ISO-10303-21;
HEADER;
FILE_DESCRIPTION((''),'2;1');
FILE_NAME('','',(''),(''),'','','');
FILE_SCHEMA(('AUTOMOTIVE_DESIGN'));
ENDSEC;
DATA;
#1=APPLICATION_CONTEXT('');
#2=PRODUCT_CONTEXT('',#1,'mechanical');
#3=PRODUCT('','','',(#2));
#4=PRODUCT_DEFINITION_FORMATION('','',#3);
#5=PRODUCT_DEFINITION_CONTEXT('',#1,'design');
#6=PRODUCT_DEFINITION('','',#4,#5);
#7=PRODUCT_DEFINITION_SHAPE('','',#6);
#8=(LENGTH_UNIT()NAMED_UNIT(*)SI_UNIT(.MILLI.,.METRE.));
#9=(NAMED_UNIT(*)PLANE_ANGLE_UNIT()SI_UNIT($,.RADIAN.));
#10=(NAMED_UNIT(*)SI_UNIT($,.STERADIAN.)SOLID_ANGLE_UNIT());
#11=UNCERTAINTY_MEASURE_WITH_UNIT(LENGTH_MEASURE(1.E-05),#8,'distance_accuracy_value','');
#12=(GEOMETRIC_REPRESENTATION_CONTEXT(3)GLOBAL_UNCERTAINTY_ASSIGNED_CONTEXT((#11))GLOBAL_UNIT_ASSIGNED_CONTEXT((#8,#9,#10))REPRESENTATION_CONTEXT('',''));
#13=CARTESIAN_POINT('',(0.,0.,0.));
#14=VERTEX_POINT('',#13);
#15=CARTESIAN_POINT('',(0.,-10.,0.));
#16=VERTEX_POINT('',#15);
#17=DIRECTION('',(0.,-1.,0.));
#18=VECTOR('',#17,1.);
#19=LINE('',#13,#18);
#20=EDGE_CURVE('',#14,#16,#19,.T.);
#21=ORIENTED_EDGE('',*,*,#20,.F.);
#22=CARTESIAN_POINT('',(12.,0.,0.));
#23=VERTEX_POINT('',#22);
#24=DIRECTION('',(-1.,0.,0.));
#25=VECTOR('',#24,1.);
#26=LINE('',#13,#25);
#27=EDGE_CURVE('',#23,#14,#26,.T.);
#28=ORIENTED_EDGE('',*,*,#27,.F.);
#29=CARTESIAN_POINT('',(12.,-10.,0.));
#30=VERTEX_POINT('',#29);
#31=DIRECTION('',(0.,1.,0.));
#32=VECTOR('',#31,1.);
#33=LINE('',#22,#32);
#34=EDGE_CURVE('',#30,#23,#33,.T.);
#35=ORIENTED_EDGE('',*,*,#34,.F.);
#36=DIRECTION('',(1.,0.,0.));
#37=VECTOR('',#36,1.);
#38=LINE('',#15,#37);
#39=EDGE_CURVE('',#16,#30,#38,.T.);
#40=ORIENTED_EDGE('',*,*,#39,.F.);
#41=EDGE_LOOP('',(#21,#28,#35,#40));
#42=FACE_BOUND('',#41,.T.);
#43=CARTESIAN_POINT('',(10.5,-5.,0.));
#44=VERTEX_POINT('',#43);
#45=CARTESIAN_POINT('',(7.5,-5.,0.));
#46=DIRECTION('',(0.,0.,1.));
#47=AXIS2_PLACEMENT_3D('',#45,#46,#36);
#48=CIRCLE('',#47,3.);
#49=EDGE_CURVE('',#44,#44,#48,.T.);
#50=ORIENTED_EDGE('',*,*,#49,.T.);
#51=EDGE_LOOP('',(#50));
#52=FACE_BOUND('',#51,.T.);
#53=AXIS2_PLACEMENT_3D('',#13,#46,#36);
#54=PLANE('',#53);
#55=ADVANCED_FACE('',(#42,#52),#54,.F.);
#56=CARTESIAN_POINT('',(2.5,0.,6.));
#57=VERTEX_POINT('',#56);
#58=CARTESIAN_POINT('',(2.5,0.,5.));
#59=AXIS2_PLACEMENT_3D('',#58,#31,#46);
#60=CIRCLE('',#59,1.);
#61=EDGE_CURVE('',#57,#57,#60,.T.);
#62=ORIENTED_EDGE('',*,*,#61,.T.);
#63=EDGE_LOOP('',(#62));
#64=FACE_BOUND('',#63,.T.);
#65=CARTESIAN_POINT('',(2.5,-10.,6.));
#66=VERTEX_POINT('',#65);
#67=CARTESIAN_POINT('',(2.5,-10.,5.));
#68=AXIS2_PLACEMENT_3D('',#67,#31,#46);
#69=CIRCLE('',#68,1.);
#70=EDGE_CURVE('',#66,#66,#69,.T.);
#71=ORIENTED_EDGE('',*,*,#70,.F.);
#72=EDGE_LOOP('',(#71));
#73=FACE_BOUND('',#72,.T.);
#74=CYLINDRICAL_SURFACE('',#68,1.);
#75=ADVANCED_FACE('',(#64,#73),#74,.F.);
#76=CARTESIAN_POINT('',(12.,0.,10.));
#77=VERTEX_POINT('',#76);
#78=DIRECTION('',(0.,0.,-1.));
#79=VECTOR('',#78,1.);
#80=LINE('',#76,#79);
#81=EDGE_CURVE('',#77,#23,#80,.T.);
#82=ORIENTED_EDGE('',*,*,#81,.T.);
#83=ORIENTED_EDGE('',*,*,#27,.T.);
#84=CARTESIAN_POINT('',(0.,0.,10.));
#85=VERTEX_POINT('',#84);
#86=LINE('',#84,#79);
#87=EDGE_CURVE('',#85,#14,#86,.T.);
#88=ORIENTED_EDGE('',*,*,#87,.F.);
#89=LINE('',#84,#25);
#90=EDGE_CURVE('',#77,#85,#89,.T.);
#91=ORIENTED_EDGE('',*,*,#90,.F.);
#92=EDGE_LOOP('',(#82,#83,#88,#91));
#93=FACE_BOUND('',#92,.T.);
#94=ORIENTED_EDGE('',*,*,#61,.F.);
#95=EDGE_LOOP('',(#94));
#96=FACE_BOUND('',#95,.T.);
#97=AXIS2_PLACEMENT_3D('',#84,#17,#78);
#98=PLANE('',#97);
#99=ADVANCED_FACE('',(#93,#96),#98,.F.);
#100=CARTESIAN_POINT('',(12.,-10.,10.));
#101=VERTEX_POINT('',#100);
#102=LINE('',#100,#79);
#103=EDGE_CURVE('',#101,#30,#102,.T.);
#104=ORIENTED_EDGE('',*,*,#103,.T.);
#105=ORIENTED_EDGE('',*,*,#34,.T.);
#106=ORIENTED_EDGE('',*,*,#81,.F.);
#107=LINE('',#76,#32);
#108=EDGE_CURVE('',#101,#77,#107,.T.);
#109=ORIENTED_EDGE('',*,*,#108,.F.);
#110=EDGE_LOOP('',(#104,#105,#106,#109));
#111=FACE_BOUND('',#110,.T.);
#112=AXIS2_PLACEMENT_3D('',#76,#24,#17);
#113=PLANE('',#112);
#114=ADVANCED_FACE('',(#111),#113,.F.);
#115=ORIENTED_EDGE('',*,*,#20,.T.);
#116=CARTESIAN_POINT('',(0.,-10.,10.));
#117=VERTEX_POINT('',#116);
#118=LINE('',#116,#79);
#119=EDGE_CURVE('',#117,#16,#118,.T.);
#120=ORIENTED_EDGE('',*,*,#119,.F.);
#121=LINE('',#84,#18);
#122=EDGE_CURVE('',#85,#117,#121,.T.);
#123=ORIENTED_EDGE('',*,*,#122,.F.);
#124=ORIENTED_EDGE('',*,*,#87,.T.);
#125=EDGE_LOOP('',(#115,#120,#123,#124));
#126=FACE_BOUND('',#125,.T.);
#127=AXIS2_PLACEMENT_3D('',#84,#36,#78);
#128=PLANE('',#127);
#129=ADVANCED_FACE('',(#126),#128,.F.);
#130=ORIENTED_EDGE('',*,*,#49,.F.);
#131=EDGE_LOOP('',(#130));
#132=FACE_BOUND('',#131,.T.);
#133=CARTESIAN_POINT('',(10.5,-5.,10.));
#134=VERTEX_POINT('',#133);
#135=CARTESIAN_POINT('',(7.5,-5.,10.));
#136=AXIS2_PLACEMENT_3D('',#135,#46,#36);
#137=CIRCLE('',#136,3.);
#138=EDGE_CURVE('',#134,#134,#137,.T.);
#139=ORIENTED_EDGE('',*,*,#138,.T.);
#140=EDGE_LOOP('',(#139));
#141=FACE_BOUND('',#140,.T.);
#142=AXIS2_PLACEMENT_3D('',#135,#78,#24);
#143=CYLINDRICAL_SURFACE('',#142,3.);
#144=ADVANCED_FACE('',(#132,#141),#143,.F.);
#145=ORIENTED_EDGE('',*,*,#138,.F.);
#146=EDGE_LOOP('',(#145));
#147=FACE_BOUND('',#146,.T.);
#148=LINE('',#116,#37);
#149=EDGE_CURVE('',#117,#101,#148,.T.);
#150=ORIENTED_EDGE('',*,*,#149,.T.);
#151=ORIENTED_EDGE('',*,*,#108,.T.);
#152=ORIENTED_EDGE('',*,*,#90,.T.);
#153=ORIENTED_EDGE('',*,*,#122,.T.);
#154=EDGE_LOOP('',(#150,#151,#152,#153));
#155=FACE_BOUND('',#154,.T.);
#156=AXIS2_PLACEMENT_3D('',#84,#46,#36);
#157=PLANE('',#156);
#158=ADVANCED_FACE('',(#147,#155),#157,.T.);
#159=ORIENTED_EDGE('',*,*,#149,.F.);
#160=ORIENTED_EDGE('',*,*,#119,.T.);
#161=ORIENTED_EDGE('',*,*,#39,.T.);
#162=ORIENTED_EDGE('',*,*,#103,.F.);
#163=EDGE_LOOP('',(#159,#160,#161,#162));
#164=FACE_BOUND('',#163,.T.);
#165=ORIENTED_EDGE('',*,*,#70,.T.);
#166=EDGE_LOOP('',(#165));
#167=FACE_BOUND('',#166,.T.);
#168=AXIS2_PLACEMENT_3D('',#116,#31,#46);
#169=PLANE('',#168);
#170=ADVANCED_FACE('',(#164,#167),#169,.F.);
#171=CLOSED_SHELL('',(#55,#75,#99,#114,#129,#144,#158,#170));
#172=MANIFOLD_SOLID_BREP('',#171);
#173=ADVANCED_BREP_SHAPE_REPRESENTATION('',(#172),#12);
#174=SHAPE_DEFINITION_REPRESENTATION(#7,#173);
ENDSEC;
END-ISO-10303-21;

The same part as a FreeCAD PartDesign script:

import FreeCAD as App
import Part
import Sketcher
from FreeCAD import Vector

doc = App.newDocument("Part")
params = doc.addObject("Spreadsheet::Sheet", "Params")
for row, (alias, value) in enumerate([
    ("sketch1_width", "12 mm"),
    ("sketch1_height", "10 mm"),
    ("pad1_length", "10 mm"),
    ("sketch2_diameter", "6 mm"),
    ("sketch3_diameter", "2 mm"),
], start=1):
    params.set(f"A{row}", alias)
    params.set(f"B{row}", "=" + value)
    params.setAlias(f"B{row}", alias)

body = doc.addObject("PartDesign::Body", "Body")

sketch1 = doc.addObject("Sketcher::SketchObject", "Sketch")
body.addObject(sketch1)
sketch1.AttachmentSupport = (doc.XY_Plane, [""])
sketch1.MapMode = "FlatFace"
sketch1.addGeometry(Part.LineSegment(Vector(0, 0, 0), Vector(0, -10, 0)), False)
sketch1.addGeometry(Part.LineSegment(Vector(0, -10, 0), Vector(12, -10, 0)), False)
sketch1.addGeometry(Part.LineSegment(Vector(12, -10, 0), Vector(12, 0, 0)), False)
sketch1.addGeometry(Part.LineSegment(Vector(12, 0, 0), Vector(0, 0, 0)), False)
sketch1.addConstraint(Sketcher.Constraint("Coincident", 0, 2, 1, 1))
sketch1.addConstraint(Sketcher.Constraint("Coincident", 1, 2, 2, 1))
sketch1.addConstraint(Sketcher.Constraint("Coincident", 2, 2, 3, 1))
sketch1.addConstraint(Sketcher.Constraint("Coincident", 3, 2, 0, 1))
sketch1.addConstraint(Sketcher.Constraint("Vertical", 0))
sketch1.addConstraint(Sketcher.Constraint("Horizontal", 1))
sketch1.addConstraint(Sketcher.Constraint("Vertical", 2))
sketch1.addConstraint(Sketcher.Constraint("Horizontal", 3))
sketch1.addConstraint(Sketcher.Constraint("Coincident", 3, 2, -1, 1))
sketch1.addConstraint(Sketcher.Constraint("DistanceX", 1, 1, 1, 2, 12.0))
sketch1.addConstraint(Sketcher.Constraint("DistanceY", 0, 2, 0, 1, 10.0))
sketch1.setExpression("Constraints[9]", "Params.sketch1_width")
sketch1.setExpression("Constraints[10]", "Params.sketch1_height")
pad1 = doc.addObject("PartDesign::Pad", "Pad")
body.addObject(pad1)
pad1.Profile = sketch1
pad1.setExpression("Length", "Params.pad1_length")

sketch2 = doc.addObject("Sketcher::SketchObject", "Sketch001")
body.addObject(sketch2)
sketch2.AttachmentSupport = (doc.XY_Plane, [""])
sketch2.MapMode = "FlatFace"
sketch2.addGeometry(Part.Circle(Vector(7.5, -5, 0), Vector(0, 0, 1), 3), False)
sketch2.addConstraint(Sketcher.Constraint("Diameter", 0, 6.0))
sketch2.addConstraint(Sketcher.Constraint("DistanceY", 0, 3, -1, 1, 5.0))
sketch2.addConstraint(Sketcher.Constraint("DistanceX", -1, 1, 0, 3, 7.5))
sketch2.setExpression("Constraints[0]", "Params.sketch2_diameter")
pocket1 = doc.addObject("PartDesign::Pocket", "Pocket")
body.addObject(pocket1)
pocket1.Profile = sketch2
pocket1.Type = "ThroughAll"
pocket1.Reversed = True

sketch3 = doc.addObject("Sketcher::SketchObject", "Sketch002")
body.addObject(sketch3)
sketch3.AttachmentSupport = (doc.XZ_Plane, [""])
sketch3.MapMode = "FlatFace"
sketch3.addGeometry(Part.Circle(Vector(2.5, 5, 0), Vector(0, 0, 1), 1), False)
sketch3.addConstraint(Sketcher.Constraint("Diameter", 0, 2.0))
sketch3.addConstraint(Sketcher.Constraint("DistanceY", -1, 1, 0, 3, 5.0))
sketch3.addConstraint(Sketcher.Constraint("DistanceX", -1, 1, 0, 3, 2.5))
sketch3.setExpression("Constraints[0]", "Params.sketch3_diameter")
pocket2 = doc.addObject("PartDesign::Pocket", "Pocket001")
body.addObject(pocket2)
pocket2.Profile = sketch3
pocket2.Type = "ThroughAll"
pocket2.Reversed = True

doc.recompute()
